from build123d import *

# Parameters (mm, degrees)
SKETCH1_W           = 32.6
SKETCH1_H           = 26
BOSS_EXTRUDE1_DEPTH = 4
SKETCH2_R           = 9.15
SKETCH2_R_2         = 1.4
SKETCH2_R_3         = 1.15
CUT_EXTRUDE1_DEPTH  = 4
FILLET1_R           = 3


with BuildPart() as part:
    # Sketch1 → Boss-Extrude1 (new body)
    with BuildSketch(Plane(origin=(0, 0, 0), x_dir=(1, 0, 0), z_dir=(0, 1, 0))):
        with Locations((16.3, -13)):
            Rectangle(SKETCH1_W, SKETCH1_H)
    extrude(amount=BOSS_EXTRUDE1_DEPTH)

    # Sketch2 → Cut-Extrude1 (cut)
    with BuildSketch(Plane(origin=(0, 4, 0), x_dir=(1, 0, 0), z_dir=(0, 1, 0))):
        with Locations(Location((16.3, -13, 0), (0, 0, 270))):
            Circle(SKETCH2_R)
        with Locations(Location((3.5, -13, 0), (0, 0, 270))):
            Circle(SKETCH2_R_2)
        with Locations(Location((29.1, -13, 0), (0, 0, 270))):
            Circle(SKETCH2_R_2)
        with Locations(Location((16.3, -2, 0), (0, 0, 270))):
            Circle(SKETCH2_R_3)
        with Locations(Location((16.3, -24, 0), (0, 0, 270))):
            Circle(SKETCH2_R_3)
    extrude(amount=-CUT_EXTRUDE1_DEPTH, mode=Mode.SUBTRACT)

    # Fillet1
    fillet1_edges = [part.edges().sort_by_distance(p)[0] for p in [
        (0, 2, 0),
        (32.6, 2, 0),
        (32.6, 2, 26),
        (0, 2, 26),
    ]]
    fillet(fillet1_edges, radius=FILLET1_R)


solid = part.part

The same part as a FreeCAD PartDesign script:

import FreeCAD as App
import Part
import Sketcher
from FreeCAD import Vector
Q = App.Units.Quantity


def edges_at(feature, points):
    """Names of the edges that pass closest to the given points."""
    edges = feature.Shape.Edges
    near = lambda p: min(range(len(edges)), key=lambda i: edges[i].distToShape(Part.Vertex(*p))[0])
    return sorted({f"Edge{near(p) + 1}" for p in points})

doc = App.newDocument("Part")
body = doc.addObject("PartDesign::Body", "Body")

# Sketch on XZ plane
sketch1 = body.newObject("Sketcher::SketchObject", "Sketch")
sketch1.AttachmentSupport = (doc.getObject("XZ_Plane"), [""])
sketch1.MapMode = "FlatFace"
sketch1.addGeometry([
    Part.LineSegment(Vector(0, 0, 0), Vector(0, 26, 0)),
    Part.LineSegment(Vector(0, 26, 0), Vector(33, 26, 0)),
    Part.LineSegment(Vector(33, 26, 0), Vector(33, 0, 0)),
    Part.LineSegment(Vector(33, 0, 0), Vector(0, 0, 0)),
], False)
sketch1.addConstraint([
    Sketcher.Constraint("Coincident", 0, 2, 1, 1),
    Sketcher.Constraint("Coincident", 1, 2, 2, 1),
    Sketcher.Constraint("Coincident", 2, 2, 3, 1),
    Sketcher.Constraint("Coincident", 3, 2, 0, 1),
    Sketcher.Constraint("Vertical", 0),
    Sketcher.Constraint("Horizontal", 1),
    Sketcher.Constraint("Vertical", 2),
    Sketcher.Constraint("Horizontal", 3),
    Sketcher.Constraint("Coincident", 3, 2, -1, 1),
    Sketcher.Constraint("DistanceY", 0, 1, 0, 2, Q("26 mm")),
    Sketcher.Constraint("DistanceX", 1, 1, 1, 2, Q("32.6 mm")),
])
pad1 = body.newObject("PartDesign::Pad", "Pad")
pad1.Profile = sketch1
pad1.Length = 4
pad1.Reversed = True

# Sketch on XZ plane
sketch2 = body.newObject("Sketcher::SketchObject", "Sketch001")
sketch2.AttachmentSupport = (doc.getObject("XZ_Plane"), [""])
sketch2.MapMode = "FlatFace"
sketch2.AttachmentOffset = App.Placement(Vector(0, 0, -4), App.Rotation())
sketch2.addGeometry([
    Part.Circle(Vector(16.3, 13, 0), Vector(0, 0, 1), 9.2),  # 0
    Part.Circle(Vector(3.5, 13, 0), Vector(0, 0, 1), 1.4),  # 1
    Part.Circle(Vector(29.1, 13, 0), Vector(0, 0, 1), 1.4),  # 2
    Part.Circle(Vector(16.3, 2, 0), Vector(0, 0, 1), 1.1),  # 3
    Part.Circle(Vector(16.3, 24, 0), Vector(0, 0, 1), 1.1),  # 4
], False)
sketch2.addConstraint([
    Sketcher.Constraint("Equal", 1, 2),
    Sketcher.Constraint("Equal", 3, 4),
    Sketcher.Constraint("Horizontal", 0, 3, 1, 3),
    Sketcher.Constraint("Horizontal", 1, 3, 2, 3),
    Sketcher.Constraint("Vertical", 0, 3, 3, 3),
    Sketcher.Constraint("Vertical", 3, 3, 4, 3),
    Sketcher.Constraint("Diameter", 0, Q("18.3 mm")),
    Sketcher.Constraint("Diameter", 1, Q("2.8 mm")),
    Sketcher.Constraint("Diameter", 3, Q("2.3 mm")),
    Sketcher.Constraint("DistanceY", -1, 1, 0, 3, Q("13 mm")),
    Sketcher.Constraint("DistanceY", -1, 1, 3, 3, Q("2 mm")),
    Sketcher.Constraint("DistanceY", -1, 1, 4, 3, Q("24 mm")),
    Sketcher.Constraint("DistanceX", -1, 1, 0, 3, Q("16.3 mm")),
    Sketcher.Constraint("DistanceX", -1, 1, 1, 3, Q("3.5 mm")),
    Sketcher.Constraint("DistanceX", -1, 1, 2, 3, Q("29.1 mm")),
])
pocket1 = body.newObject("PartDesign::Pocket", "Pocket")
pocket1.Profile = sketch2
pocket1.Length = 4
pocket1.Reversed = True
doc.recompute()

fillet = body.newObject("PartDesign::Fillet", "Fillet")
fillet.Base = (pocket1, edges_at(pocket1, [
    (0, 2, 0),
    (32.6, 2, 0),
    (32.6, 2, 26),
    (0, 2, 26),
]))
fillet.Radius = 3

doc.recompute()
